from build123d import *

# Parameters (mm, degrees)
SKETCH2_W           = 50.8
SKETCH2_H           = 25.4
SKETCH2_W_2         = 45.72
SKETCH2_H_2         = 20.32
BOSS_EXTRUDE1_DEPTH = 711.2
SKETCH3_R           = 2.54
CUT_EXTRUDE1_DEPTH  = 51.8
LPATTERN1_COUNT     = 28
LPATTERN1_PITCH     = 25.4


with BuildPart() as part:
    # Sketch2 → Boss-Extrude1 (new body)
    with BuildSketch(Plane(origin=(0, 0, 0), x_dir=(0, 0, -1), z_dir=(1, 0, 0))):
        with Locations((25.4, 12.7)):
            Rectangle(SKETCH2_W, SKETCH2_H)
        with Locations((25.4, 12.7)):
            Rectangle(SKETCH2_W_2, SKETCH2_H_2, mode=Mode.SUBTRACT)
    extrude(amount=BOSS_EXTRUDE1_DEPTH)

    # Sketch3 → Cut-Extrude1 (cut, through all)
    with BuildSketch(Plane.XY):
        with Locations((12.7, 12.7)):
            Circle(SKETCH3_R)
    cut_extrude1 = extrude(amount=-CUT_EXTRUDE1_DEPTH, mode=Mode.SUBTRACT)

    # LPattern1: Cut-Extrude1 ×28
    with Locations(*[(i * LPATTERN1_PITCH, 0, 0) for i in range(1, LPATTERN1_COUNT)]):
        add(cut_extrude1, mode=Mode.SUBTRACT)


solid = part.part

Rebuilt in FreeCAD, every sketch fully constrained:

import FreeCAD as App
import Part
import Sketcher
Q = App.Units.Quantity


def add_polygon(sketch, points):
    """Adds a closed chain of lines whose ends are joined by coincident constraints."""
    first, n = sketch.GeometryCount, len(points)
    for a, b in zip(points, points[1:] + points[:1]):
        sketch.addGeometry(Part.LineSegment(App.Vector(*a, 0), App.Vector(*b, 0)), False)
    for i in range(n):
        sketch.addConstraint(Sketcher.Constraint("Coincident", first + i, 2, first + (i + 1) % n, 1))

doc = App.newDocument("Part")
params = doc.addObject("Spreadsheet::Sheet", "Params")
for row, (alias, value) in enumerate([
    ("sketch1_width", "1 in"),
    ("sketch1_height", "2 in"),
    ("sketch1_width2", "0.8 in"),
    ("sketch1_height2", "1.8 in"),
    ("pad1_length", "28 in"),
    ("sketch2_diameter", "0.2 in"),
    ("linearpattern_pitch", "1 in"),
], start=1):
    params.set(f"A{row}", alias)
    params.set(f"B{row}", "=" + value)
    params.setAlias(f"B{row}", alias)

body = doc.addObject("PartDesign::Body", "Body")

sketch1 = body.newObject("Sketcher::SketchObject", "Sketch")
sketch1.AttachmentSupport = (doc.getObject("YZ_Plane"), [""])
sketch1.MapMode = "FlatFace"
add_polygon(sketch1, [(25, 0), (0, 0), (0, -51), (25, -51)])
add_polygon(sketch1, [(3, -48), (3, -3), (23, -3), (23, -48)])
sketch1.addConstraint([
    Sketcher.Constraint("Horizontal", 0),
    Sketcher.Constraint("Vertical", 1),
    Sketcher.Constraint("Horizontal", 2),
    Sketcher.Constraint("Vertical", 3),
    Sketcher.Constraint("Vertical", 4),
    Sketcher.Constraint("Horizontal", 5),
    Sketcher.Constraint("Vertical", 6),
    Sketcher.Constraint("Horizontal", 7),
    Sketcher.Constraint("Coincident", 0, 2, -1, 1),
    Sketcher.Constraint("DistanceX", 0, 2, 0, 1, Q("1 in")),
    Sketcher.Constraint("DistanceY", 1, 2, 1, 1, Q("2 in")),
    Sketcher.Constraint("DistanceX", 5, 1, 5, 2, Q("0.8 in")),
    Sketcher.Constraint("DistanceY", 4, 1, 4, 2, Q("1.8 in")),
    Sketcher.Constraint("DistanceX", -1, 1, 4, 2, Q("0.1 in")),
    Sketcher.Constraint("DistanceY", 4, 2, -1, 1, Q("0.1 in")),
])
sketch1.setExpression("Constraints[17]", "Params.sketch1_width")
sketch1.setExpression("Constraints[18]", "Params.sketch1_height")
sketch1.setExpression("Constraints[19]", "Params.sketch1_width2")
sketch1.setExpression("Constraints[20]", "Params.sketch1_height2")
pad1 = body.newObject("PartDesign::Pad", "Pad")
pad1.Profile = sketch1
pad1.setExpression("Length", "Params.pad1_length")

sketch2 = body.newObject("Sketcher::SketchObject", "Sketch001")
sketch2.AttachmentSupport = (doc.getObject("XY_Plane"), [""])
sketch2.MapMode = "FlatFace"
sketch2.addGeometry(Part.Circle(App.Vector(12.7, 12.7, 0), App.Vector(0, 0, 1), 2.5), False)
sketch2.addConstraint([
    Sketcher.Constraint("Diameter", 0, Q("0.2 in")),
    Sketcher.Constraint("DistanceX", -1, 1, 0, 3, Q("0.5 in")),
    Sketcher.Constraint("DistanceY", -1, 1, 0, 3, Q("0.5 in")),
])
sketch2.setExpression("Constraints[0]", "Params.sketch2_diameter")
pocket1 = body.newObject("PartDesign::Pocket", "Pocket")
pocket1.Profile = sketch2
pocket1.Type = "ThroughAll"
doc.recompute()

linearpattern = body.newObject("PartDesign::LinearPattern", "LinearPattern")
linearpattern.Originals = [pocket1]
linearpattern.Direction = (doc.getObject("X_Axis"), [""])
linearpattern.Mode = "offset"
linearpattern.setExpression("Offset", "Params.linearpattern_pitch")
linearpattern.Occurrences = 28
body.Tip = linearpattern

doc.recompute()
